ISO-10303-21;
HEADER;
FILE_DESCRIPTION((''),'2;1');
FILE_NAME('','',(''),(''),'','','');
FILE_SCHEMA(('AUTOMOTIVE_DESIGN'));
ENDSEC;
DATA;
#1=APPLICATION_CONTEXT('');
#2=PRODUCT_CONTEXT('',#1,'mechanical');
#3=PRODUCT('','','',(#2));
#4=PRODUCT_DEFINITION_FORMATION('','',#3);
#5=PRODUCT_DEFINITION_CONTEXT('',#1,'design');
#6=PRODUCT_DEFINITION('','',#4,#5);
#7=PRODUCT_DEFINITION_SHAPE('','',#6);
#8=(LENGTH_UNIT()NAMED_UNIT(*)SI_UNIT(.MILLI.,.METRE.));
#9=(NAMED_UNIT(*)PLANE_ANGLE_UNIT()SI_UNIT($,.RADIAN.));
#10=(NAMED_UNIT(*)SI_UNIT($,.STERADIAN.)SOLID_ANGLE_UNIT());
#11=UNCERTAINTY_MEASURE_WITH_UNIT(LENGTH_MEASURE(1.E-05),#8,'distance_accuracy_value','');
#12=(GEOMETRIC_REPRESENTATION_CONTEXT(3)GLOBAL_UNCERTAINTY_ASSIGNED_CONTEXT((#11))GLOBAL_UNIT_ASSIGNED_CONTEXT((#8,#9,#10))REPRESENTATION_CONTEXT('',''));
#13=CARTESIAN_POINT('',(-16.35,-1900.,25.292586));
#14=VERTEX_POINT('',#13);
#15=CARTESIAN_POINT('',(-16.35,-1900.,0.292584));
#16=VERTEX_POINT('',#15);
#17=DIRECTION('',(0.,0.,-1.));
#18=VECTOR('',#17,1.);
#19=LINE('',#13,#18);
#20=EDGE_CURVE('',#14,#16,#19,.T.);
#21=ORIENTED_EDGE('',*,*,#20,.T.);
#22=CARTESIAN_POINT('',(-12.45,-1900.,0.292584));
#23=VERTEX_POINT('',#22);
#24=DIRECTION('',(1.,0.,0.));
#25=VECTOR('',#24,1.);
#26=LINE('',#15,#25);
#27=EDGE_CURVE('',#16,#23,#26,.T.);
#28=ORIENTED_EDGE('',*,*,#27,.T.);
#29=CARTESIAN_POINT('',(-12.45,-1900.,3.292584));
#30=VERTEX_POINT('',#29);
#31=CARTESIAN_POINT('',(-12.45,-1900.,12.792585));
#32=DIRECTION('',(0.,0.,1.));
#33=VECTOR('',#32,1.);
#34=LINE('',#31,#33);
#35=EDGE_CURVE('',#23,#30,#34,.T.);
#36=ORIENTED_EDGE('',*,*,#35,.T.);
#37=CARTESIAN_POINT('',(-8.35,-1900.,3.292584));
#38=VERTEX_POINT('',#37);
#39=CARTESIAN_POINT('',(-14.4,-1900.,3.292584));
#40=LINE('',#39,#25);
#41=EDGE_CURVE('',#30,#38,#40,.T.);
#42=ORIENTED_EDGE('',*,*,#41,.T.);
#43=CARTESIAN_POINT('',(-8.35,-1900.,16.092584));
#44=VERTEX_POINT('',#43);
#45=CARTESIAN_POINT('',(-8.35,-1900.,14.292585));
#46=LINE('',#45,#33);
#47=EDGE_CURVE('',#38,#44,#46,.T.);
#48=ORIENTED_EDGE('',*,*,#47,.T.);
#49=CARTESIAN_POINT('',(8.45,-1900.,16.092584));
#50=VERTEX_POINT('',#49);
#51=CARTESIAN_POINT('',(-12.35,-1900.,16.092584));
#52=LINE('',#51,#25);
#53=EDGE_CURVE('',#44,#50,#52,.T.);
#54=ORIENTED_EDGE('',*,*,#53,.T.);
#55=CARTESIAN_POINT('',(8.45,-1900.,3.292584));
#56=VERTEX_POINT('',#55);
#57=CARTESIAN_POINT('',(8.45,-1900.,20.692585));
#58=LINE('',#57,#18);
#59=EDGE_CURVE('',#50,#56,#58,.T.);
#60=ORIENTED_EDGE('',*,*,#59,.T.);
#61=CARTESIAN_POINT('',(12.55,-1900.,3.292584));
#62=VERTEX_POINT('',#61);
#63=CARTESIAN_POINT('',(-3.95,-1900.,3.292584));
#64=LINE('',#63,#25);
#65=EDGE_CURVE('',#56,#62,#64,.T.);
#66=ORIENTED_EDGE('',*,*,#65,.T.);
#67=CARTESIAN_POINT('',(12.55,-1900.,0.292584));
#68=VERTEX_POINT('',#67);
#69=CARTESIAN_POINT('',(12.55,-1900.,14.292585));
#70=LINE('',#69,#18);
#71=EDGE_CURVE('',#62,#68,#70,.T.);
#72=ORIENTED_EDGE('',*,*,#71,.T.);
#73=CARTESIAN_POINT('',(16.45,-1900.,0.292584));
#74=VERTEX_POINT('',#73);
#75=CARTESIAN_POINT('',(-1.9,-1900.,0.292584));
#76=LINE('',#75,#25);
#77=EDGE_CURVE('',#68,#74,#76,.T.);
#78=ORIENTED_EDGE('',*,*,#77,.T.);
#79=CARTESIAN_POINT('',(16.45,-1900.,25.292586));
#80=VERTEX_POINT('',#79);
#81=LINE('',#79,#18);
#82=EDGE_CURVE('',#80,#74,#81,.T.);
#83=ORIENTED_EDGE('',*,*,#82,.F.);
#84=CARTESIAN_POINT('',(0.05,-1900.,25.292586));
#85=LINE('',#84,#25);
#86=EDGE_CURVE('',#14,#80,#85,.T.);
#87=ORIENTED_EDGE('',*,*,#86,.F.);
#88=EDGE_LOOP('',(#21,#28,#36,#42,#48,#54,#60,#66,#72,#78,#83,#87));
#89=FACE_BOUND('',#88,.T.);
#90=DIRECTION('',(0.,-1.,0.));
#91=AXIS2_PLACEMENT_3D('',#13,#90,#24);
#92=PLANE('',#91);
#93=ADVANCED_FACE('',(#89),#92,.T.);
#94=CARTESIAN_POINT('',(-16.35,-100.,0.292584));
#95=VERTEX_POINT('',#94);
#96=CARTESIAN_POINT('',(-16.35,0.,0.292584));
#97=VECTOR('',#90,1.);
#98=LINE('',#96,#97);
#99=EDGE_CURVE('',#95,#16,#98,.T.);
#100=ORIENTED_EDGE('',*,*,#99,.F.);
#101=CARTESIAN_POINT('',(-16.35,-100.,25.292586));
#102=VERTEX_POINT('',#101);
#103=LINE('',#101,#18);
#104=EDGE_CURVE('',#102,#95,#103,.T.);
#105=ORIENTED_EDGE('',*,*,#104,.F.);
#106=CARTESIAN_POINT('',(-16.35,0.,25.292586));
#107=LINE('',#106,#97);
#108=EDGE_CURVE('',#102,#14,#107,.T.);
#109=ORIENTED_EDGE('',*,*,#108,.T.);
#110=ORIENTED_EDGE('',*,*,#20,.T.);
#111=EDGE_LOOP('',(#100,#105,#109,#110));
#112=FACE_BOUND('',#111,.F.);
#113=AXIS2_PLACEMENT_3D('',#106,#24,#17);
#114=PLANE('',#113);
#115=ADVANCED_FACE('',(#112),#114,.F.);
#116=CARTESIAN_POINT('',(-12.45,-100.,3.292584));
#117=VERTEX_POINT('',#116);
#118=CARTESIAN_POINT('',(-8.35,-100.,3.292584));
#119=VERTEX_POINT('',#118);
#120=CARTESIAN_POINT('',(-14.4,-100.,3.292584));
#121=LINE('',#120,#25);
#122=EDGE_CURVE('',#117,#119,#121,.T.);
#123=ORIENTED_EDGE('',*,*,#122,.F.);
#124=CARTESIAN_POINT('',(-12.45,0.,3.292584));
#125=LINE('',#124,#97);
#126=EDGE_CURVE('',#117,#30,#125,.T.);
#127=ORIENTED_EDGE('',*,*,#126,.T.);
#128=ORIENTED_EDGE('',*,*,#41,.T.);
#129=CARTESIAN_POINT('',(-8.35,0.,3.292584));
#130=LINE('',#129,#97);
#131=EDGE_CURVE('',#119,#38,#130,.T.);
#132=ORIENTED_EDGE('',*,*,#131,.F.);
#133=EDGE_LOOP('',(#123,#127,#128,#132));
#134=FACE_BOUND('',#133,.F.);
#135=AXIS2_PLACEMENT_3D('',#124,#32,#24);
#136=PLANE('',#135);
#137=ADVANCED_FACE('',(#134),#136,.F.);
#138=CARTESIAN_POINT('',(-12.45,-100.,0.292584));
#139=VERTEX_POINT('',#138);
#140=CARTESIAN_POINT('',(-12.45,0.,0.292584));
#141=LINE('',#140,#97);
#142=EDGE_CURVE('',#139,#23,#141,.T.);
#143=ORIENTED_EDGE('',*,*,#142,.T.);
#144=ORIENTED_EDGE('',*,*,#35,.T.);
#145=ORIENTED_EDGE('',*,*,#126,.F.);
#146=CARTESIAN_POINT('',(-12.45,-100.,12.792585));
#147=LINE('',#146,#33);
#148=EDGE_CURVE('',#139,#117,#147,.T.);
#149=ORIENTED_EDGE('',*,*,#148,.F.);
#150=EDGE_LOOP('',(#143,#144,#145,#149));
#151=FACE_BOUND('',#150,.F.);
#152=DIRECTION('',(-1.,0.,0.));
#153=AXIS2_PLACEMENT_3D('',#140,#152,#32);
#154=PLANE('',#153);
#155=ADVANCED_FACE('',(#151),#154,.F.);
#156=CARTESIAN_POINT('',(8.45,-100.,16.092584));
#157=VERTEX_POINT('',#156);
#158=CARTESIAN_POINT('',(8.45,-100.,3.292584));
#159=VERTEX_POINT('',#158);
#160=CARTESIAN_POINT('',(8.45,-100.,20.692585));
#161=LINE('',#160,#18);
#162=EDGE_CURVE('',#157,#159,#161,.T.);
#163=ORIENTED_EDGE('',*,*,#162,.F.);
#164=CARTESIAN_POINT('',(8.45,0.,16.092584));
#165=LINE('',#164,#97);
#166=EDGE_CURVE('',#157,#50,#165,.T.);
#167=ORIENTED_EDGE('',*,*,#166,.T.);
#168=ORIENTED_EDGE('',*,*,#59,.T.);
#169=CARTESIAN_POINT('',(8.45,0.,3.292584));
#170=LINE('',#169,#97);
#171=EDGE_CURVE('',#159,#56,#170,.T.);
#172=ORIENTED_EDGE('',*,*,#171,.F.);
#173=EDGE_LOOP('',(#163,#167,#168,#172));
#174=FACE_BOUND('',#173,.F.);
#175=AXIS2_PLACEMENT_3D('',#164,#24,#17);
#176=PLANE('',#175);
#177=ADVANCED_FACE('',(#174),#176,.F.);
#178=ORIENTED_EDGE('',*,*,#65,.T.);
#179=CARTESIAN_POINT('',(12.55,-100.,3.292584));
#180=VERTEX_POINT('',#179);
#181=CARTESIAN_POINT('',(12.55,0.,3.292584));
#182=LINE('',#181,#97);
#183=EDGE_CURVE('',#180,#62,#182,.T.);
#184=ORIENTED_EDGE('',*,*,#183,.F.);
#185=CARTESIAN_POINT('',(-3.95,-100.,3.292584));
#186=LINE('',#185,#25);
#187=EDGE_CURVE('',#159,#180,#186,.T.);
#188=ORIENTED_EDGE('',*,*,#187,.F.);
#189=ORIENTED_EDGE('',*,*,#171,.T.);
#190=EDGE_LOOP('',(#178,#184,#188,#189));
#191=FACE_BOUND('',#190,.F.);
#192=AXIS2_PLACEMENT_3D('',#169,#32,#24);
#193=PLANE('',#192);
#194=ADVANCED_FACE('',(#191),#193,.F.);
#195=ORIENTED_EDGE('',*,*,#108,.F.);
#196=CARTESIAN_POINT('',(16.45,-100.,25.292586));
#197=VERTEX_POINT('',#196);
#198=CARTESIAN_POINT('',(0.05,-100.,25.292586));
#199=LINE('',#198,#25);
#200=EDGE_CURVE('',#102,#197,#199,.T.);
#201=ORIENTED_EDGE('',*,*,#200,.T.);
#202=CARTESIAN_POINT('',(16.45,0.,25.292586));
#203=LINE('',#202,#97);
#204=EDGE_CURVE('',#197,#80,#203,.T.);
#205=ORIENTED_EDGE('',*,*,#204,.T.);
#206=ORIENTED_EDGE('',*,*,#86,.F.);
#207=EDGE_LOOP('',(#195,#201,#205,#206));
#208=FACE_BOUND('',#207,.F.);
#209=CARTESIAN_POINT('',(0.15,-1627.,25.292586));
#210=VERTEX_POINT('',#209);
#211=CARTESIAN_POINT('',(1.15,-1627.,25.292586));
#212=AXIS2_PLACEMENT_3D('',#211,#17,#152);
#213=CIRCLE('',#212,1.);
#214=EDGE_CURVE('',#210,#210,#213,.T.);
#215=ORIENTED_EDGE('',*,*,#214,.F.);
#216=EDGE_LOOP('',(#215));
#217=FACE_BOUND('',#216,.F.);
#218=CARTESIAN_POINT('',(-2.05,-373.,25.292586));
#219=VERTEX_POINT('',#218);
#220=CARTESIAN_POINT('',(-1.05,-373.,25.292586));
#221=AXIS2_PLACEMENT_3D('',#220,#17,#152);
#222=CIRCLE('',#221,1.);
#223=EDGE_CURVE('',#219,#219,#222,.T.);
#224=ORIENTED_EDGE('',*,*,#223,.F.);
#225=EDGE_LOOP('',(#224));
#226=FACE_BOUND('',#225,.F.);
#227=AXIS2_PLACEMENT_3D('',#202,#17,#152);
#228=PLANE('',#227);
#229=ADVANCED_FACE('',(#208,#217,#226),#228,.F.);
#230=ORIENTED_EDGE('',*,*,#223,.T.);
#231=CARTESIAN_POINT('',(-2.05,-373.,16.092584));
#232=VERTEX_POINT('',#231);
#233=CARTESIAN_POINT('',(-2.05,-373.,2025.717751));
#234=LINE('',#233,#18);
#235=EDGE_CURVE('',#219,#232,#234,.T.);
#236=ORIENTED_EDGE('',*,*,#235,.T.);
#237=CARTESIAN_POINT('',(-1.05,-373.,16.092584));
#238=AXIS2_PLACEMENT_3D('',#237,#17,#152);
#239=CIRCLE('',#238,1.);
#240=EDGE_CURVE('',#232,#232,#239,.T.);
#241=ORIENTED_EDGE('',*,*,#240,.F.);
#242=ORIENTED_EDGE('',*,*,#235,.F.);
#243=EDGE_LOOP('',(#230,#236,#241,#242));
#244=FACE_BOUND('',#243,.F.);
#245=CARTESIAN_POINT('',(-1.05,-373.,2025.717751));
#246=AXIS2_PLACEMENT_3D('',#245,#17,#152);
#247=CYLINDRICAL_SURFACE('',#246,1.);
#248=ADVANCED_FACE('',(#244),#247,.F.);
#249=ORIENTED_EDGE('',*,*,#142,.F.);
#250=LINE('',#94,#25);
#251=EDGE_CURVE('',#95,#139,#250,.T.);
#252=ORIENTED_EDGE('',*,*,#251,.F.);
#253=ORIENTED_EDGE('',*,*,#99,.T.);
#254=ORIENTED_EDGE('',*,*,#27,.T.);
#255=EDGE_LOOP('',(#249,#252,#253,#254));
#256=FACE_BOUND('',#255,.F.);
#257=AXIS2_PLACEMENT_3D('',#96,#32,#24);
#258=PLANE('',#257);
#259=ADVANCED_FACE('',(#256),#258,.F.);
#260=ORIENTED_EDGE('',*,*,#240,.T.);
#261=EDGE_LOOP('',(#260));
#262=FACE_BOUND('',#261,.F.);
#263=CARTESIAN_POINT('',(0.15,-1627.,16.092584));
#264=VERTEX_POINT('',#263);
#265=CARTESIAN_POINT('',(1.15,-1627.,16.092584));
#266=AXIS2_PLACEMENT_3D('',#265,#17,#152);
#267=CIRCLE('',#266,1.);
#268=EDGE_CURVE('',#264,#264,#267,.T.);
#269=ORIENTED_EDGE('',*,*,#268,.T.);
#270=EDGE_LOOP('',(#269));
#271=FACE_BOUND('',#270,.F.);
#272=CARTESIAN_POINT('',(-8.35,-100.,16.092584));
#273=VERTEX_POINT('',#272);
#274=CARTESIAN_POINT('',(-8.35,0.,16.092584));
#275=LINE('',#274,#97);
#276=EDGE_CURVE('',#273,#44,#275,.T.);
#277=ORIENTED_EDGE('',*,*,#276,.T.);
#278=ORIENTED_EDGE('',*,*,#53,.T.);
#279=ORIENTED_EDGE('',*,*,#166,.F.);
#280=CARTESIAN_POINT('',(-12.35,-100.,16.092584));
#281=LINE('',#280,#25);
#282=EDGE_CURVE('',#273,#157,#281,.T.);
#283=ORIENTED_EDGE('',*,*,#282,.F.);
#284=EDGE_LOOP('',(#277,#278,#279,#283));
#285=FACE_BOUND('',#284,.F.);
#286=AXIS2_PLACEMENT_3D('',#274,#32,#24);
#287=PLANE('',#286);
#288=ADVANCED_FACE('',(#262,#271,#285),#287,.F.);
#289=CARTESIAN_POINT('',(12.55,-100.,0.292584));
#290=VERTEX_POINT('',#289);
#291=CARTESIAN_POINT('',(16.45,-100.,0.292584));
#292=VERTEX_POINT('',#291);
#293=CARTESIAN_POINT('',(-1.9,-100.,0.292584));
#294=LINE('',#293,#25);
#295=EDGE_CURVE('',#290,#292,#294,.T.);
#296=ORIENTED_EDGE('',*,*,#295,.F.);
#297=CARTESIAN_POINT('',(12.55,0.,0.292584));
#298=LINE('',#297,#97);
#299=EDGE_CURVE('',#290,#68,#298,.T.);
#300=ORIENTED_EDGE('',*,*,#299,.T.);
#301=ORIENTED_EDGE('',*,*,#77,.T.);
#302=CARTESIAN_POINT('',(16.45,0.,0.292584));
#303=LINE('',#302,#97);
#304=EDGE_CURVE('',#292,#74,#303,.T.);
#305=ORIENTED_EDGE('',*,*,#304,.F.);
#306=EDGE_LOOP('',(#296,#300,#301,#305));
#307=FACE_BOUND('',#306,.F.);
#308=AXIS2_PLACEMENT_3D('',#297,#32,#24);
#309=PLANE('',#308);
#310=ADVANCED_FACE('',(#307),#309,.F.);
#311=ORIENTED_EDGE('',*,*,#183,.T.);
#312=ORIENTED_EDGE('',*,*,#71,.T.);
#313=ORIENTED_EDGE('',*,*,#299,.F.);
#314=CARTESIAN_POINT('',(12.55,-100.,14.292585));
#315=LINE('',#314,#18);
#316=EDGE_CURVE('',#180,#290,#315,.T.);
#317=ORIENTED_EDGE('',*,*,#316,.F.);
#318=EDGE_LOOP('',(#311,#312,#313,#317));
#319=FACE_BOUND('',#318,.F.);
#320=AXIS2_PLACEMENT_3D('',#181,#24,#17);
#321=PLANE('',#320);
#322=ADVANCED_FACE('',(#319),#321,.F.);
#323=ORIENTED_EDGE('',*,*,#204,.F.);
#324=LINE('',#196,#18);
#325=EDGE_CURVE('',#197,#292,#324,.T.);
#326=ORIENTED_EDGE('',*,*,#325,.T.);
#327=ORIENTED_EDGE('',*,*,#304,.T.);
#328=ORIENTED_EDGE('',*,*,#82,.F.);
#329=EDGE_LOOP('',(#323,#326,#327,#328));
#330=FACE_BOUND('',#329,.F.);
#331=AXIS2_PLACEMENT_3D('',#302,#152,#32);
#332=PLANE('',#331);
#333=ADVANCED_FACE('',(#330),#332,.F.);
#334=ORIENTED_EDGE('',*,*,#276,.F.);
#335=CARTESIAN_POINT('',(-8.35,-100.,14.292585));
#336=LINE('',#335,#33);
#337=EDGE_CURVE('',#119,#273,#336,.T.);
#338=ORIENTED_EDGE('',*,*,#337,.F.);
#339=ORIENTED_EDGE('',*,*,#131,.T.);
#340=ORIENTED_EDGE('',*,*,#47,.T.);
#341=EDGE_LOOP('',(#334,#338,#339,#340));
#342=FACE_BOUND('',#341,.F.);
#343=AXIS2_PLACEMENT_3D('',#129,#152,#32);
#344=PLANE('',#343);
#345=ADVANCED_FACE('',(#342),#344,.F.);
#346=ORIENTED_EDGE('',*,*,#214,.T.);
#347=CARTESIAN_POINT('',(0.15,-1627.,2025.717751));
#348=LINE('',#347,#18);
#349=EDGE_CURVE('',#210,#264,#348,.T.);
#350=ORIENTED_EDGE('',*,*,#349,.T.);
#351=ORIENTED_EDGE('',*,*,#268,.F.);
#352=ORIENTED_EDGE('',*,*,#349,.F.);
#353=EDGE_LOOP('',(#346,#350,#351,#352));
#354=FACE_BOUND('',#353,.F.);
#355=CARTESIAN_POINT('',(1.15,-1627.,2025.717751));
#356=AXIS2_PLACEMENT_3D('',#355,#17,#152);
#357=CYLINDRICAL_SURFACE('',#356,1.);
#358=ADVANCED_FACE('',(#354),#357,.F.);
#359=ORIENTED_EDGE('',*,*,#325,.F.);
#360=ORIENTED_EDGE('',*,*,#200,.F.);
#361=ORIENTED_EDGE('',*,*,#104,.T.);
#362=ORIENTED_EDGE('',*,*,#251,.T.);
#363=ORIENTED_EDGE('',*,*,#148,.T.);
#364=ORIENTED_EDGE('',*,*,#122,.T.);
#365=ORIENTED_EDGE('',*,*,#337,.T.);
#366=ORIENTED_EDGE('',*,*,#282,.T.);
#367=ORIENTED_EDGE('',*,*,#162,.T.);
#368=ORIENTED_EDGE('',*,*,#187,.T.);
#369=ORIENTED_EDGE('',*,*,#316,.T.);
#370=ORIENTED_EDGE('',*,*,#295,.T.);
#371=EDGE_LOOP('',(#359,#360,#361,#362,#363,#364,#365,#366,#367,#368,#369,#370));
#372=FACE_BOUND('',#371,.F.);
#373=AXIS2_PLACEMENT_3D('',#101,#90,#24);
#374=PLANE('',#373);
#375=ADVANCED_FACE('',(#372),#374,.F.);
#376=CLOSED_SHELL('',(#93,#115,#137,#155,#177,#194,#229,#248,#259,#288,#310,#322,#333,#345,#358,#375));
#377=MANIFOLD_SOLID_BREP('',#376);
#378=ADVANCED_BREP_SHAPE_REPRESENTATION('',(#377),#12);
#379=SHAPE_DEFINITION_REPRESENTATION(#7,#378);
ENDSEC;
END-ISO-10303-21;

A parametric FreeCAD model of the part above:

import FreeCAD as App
import Part
import Sketcher


def add_polygon(sketch, points):
    """Adds a closed chain of lines whose ends are joined by coincident constraints."""
    first, n = sketch.GeometryCount, len(points)
    for a, b in zip(points, points[1:] + points[:1]):
        sketch.addGeometry(Part.LineSegment(App.Vector(*a, 0), App.Vector(*b, 0)), False)
    for i in range(n):
        sketch.addConstraint(Sketcher.Constraint("Coincident", first + i, 2, first + (i + 1) % n, 1))

doc = App.newDocument("Part")
params = doc.addObject("Spreadsheet::Sheet", "Params")
for row, (alias, value) in enumerate([
    ("sketch1_height", "25.000002 mm"),
    ("sketch1_height2", "3 mm"),
    ("sketch1_width", "3.9 mm"),
    ("sketch1_width2", "32.8 mm"),
    ("sketch1_width3", "4.1 mm"),
    ("pad1_length", "2000 mm"),
    ("sketch2_diameter", "2 mm"),
    ("hole_diameter", "2 mm"),
    ("sketch3_height", "100 mm"),
    ("sketch3_width", "32.8 mm"),
], start=1):
    params.set(f"A{row}", alias)
    params.set(f"B{row}", "=" + value)
    params.setAlias(f"B{row}", alias)

body = doc.addObject("PartDesign::Body", "Body")

# Sketch on XZ plane
sketch1 = body.newObject("Sketcher::SketchObject", "Sketch")
sketch1.AttachmentSupport = (doc.getObject("XZ_Plane"), [""])
sketch1.MapMode = "FlatFace"
add_polygon(sketch1, [(12.55, 0.292584), (16.45, 0.292584), (16.45, 25.292586), (-16.35, 25.292586), (-16.35, 0.292584), (-12.45, 0.292584), (-12.45, 3.292584), (-8.35, 3.292584), (-8.35, 16.092584), (8.45, 16.092584), (8.45, 3.292584), (12.55, 3.292584)])  # lines 0-11
sketch1.addConstraint([
    Sketcher.Constraint("Horizontal", 0),
    Sketcher.Constraint("Vertical", 1),
    Sketcher.Constraint("Horizontal", 2),
    Sketcher.Constraint("Vertical", 3),
    Sketcher.Constraint("Horizontal", 4),
    Sketcher.Constraint("Vertical", 5),
    Sketcher.Constraint("Horizontal", 6),
    Sketcher.Constraint("Vertical", 7),
    Sketcher.Constraint("Horizontal", 8),
    Sketcher.Constraint("Vertical", 9),
    Sketcher.Constraint("Horizontal", 10),
    Sketcher.Constraint("Vertical", 11),
    Sketcher.Constraint("Horizontal", 0, 2, 3, 2),
    Sketcher.Constraint("Horizontal", 6, 2, 9, 2),
    Sketcher.Constraint("Equal", 0, 4),
    Sketcher.Constraint("Equal", 6, 10),
    Sketcher.Constraint("DistanceY", 1, 1, 1, 2, 25.000002),
    Sketcher.Constraint("DistanceY", 5, 1, 5, 2, 3.0),
    Sketcher.Constraint("DistanceX", 0, 1, 0, 2, 3.9),
    Sketcher.Constraint("DistanceX", 2, 2, 2, 1, 32.8),
    Sketcher.Constraint("DistanceX", 6, 1, 6, 2, 4.1),
    Sketcher.Constraint("DistanceY", 7, 1, 7, 2, 12.8),
    Sketcher.Constraint("DistanceX", -1, 1, 0, 2, 16.45),
    Sketcher.Constraint("DistanceY", -1, 1, 0, 2, 0.292584),
])
sketch1.setExpression("Constraints[28]", "Params.sketch1_height")
sketch1.setExpression("Constraints[29]", "Params.sketch1_height2")
sketch1.setExpression("Constraints[30]", "Params.sketch1_width")
sketch1.setExpression("Constraints[31]", "Params.sketch1_width2")
sketch1.setExpression("Constraints[32]", "Params.sketch1_width3")
pad1 = body.newObject("PartDesign::Pad", "Pad")
pad1.Profile = sketch1
pad1.setExpression("Length", "Params.pad1_length")

# Sketch on XY plane
sketch2 = body.newObject("Sketcher::SketchObject", "Sketch001")
sketch2.AttachmentSupport = (doc.getObject("XY_Plane"), [""])
sketch2.MapMode = "FlatFace"
sketch2.AttachmentOffset = App.Placement(App.Vector(0, 0, 25.292586), App.Rotation())
sketch2.addGeometry([
    Part.Circle(App.Vector(-1.05, -373, 0), App.Vector(0, 0, 1), 1),
    Part.Circle(App.Vector(1.15, -1627, 0), App.Vector(0, 0, 1), 1),
], False)
sketch2.addConstraint([
    Sketcher.Constraint("Equal", 0, 1),
    Sketcher.Constraint("Diameter", 0, 2.0),
    Sketcher.Constraint("DistanceY", 0, 3, -1, 1, 373.0),
    Sketcher.Constraint("DistanceY", 1, 3, -1, 1, 1627.0),
    Sketcher.Constraint("DistanceX", 0, 3, 1, 3, 2.2),
    Sketcher.Constraint("DistanceX", 0, 3, -1, 1, 1.05),
])
sketch2.setExpression("Constraints[1]", "Params.sketch2_diameter")
doc.recompute()
hole = body.newObject("PartDesign::Hole", "Hole")
hole.Profile = sketch2
hole.ThreadType = "None"
hole.setExpression("Diameter", "Params.hole_diameter")
hole.DepthType = "ThroughAll"

# Sketch on XY plane
sketch3 = body.newObject("Sketcher::SketchObject", "Sketch002")
sketch3.AttachmentSupport = (doc.getObject("XY_Plane"), [""])
sketch3.MapMode = "FlatFace"
sketch3.AttachmentOffset = App.Placement(App.Vector(0, 0, 25.292586), App.Rotation())
add_polygon(sketch3, [(-16.35, 0), (-16.35, -100), (16.45, -100), (16.45, 0)])  # lines 0-3
add_polygon(sketch3, [(-16.35, -1900), (-16.35, -2000), (16.45, -2000), (16.45, -1900)])  # lines 4-7
sketch3.addConstraint([
    Sketcher.Constraint("Vertical", 0),
    Sketcher.Constraint("Horizontal", 1),
    Sketcher.Constraint("Vertical", 2),
    Sketcher.Constraint("Horizontal", 3),
    Sketcher.Constraint("Vertical", 4),
    Sketcher.Constraint("Horizontal", 5),
    Sketcher.Constraint("Vertical", 6),
    Sketcher.Constraint("Horizontal", 7),
    Sketcher.Constraint("PointOnObject", 2, 2, -1),
    Sketcher.Constraint("Vertical", 3, 2, 4, 2),
    Sketcher.Constraint("Vertical", 2, 2, 5, 2),
    Sketcher.Constraint("Equal", 2, 4),
    Sketcher.Constraint("DistanceY", 0, 2, 0, 1, 100.0),
    Sketcher.Constraint("DistanceX", 1, 1, 1, 2, 32.8),
    Sketcher.Constraint("DistanceY", 4, 2, -1, 1, 2000.0),
    Sketcher.Constraint("DistanceX", 0, 2, -1, 1, 16.35),
])
sketch3.setExpression("Constraints[20]", "Params.sketch3_height")
sketch3.setExpression("Constraints[21]", "Params.sketch3_width")
pocket1 = body.newObject("PartDesign::Pocket", "Pocket")
pocket1.Profile = sketch3
pocket1.Type = "ThroughAll"

doc.recompute()
